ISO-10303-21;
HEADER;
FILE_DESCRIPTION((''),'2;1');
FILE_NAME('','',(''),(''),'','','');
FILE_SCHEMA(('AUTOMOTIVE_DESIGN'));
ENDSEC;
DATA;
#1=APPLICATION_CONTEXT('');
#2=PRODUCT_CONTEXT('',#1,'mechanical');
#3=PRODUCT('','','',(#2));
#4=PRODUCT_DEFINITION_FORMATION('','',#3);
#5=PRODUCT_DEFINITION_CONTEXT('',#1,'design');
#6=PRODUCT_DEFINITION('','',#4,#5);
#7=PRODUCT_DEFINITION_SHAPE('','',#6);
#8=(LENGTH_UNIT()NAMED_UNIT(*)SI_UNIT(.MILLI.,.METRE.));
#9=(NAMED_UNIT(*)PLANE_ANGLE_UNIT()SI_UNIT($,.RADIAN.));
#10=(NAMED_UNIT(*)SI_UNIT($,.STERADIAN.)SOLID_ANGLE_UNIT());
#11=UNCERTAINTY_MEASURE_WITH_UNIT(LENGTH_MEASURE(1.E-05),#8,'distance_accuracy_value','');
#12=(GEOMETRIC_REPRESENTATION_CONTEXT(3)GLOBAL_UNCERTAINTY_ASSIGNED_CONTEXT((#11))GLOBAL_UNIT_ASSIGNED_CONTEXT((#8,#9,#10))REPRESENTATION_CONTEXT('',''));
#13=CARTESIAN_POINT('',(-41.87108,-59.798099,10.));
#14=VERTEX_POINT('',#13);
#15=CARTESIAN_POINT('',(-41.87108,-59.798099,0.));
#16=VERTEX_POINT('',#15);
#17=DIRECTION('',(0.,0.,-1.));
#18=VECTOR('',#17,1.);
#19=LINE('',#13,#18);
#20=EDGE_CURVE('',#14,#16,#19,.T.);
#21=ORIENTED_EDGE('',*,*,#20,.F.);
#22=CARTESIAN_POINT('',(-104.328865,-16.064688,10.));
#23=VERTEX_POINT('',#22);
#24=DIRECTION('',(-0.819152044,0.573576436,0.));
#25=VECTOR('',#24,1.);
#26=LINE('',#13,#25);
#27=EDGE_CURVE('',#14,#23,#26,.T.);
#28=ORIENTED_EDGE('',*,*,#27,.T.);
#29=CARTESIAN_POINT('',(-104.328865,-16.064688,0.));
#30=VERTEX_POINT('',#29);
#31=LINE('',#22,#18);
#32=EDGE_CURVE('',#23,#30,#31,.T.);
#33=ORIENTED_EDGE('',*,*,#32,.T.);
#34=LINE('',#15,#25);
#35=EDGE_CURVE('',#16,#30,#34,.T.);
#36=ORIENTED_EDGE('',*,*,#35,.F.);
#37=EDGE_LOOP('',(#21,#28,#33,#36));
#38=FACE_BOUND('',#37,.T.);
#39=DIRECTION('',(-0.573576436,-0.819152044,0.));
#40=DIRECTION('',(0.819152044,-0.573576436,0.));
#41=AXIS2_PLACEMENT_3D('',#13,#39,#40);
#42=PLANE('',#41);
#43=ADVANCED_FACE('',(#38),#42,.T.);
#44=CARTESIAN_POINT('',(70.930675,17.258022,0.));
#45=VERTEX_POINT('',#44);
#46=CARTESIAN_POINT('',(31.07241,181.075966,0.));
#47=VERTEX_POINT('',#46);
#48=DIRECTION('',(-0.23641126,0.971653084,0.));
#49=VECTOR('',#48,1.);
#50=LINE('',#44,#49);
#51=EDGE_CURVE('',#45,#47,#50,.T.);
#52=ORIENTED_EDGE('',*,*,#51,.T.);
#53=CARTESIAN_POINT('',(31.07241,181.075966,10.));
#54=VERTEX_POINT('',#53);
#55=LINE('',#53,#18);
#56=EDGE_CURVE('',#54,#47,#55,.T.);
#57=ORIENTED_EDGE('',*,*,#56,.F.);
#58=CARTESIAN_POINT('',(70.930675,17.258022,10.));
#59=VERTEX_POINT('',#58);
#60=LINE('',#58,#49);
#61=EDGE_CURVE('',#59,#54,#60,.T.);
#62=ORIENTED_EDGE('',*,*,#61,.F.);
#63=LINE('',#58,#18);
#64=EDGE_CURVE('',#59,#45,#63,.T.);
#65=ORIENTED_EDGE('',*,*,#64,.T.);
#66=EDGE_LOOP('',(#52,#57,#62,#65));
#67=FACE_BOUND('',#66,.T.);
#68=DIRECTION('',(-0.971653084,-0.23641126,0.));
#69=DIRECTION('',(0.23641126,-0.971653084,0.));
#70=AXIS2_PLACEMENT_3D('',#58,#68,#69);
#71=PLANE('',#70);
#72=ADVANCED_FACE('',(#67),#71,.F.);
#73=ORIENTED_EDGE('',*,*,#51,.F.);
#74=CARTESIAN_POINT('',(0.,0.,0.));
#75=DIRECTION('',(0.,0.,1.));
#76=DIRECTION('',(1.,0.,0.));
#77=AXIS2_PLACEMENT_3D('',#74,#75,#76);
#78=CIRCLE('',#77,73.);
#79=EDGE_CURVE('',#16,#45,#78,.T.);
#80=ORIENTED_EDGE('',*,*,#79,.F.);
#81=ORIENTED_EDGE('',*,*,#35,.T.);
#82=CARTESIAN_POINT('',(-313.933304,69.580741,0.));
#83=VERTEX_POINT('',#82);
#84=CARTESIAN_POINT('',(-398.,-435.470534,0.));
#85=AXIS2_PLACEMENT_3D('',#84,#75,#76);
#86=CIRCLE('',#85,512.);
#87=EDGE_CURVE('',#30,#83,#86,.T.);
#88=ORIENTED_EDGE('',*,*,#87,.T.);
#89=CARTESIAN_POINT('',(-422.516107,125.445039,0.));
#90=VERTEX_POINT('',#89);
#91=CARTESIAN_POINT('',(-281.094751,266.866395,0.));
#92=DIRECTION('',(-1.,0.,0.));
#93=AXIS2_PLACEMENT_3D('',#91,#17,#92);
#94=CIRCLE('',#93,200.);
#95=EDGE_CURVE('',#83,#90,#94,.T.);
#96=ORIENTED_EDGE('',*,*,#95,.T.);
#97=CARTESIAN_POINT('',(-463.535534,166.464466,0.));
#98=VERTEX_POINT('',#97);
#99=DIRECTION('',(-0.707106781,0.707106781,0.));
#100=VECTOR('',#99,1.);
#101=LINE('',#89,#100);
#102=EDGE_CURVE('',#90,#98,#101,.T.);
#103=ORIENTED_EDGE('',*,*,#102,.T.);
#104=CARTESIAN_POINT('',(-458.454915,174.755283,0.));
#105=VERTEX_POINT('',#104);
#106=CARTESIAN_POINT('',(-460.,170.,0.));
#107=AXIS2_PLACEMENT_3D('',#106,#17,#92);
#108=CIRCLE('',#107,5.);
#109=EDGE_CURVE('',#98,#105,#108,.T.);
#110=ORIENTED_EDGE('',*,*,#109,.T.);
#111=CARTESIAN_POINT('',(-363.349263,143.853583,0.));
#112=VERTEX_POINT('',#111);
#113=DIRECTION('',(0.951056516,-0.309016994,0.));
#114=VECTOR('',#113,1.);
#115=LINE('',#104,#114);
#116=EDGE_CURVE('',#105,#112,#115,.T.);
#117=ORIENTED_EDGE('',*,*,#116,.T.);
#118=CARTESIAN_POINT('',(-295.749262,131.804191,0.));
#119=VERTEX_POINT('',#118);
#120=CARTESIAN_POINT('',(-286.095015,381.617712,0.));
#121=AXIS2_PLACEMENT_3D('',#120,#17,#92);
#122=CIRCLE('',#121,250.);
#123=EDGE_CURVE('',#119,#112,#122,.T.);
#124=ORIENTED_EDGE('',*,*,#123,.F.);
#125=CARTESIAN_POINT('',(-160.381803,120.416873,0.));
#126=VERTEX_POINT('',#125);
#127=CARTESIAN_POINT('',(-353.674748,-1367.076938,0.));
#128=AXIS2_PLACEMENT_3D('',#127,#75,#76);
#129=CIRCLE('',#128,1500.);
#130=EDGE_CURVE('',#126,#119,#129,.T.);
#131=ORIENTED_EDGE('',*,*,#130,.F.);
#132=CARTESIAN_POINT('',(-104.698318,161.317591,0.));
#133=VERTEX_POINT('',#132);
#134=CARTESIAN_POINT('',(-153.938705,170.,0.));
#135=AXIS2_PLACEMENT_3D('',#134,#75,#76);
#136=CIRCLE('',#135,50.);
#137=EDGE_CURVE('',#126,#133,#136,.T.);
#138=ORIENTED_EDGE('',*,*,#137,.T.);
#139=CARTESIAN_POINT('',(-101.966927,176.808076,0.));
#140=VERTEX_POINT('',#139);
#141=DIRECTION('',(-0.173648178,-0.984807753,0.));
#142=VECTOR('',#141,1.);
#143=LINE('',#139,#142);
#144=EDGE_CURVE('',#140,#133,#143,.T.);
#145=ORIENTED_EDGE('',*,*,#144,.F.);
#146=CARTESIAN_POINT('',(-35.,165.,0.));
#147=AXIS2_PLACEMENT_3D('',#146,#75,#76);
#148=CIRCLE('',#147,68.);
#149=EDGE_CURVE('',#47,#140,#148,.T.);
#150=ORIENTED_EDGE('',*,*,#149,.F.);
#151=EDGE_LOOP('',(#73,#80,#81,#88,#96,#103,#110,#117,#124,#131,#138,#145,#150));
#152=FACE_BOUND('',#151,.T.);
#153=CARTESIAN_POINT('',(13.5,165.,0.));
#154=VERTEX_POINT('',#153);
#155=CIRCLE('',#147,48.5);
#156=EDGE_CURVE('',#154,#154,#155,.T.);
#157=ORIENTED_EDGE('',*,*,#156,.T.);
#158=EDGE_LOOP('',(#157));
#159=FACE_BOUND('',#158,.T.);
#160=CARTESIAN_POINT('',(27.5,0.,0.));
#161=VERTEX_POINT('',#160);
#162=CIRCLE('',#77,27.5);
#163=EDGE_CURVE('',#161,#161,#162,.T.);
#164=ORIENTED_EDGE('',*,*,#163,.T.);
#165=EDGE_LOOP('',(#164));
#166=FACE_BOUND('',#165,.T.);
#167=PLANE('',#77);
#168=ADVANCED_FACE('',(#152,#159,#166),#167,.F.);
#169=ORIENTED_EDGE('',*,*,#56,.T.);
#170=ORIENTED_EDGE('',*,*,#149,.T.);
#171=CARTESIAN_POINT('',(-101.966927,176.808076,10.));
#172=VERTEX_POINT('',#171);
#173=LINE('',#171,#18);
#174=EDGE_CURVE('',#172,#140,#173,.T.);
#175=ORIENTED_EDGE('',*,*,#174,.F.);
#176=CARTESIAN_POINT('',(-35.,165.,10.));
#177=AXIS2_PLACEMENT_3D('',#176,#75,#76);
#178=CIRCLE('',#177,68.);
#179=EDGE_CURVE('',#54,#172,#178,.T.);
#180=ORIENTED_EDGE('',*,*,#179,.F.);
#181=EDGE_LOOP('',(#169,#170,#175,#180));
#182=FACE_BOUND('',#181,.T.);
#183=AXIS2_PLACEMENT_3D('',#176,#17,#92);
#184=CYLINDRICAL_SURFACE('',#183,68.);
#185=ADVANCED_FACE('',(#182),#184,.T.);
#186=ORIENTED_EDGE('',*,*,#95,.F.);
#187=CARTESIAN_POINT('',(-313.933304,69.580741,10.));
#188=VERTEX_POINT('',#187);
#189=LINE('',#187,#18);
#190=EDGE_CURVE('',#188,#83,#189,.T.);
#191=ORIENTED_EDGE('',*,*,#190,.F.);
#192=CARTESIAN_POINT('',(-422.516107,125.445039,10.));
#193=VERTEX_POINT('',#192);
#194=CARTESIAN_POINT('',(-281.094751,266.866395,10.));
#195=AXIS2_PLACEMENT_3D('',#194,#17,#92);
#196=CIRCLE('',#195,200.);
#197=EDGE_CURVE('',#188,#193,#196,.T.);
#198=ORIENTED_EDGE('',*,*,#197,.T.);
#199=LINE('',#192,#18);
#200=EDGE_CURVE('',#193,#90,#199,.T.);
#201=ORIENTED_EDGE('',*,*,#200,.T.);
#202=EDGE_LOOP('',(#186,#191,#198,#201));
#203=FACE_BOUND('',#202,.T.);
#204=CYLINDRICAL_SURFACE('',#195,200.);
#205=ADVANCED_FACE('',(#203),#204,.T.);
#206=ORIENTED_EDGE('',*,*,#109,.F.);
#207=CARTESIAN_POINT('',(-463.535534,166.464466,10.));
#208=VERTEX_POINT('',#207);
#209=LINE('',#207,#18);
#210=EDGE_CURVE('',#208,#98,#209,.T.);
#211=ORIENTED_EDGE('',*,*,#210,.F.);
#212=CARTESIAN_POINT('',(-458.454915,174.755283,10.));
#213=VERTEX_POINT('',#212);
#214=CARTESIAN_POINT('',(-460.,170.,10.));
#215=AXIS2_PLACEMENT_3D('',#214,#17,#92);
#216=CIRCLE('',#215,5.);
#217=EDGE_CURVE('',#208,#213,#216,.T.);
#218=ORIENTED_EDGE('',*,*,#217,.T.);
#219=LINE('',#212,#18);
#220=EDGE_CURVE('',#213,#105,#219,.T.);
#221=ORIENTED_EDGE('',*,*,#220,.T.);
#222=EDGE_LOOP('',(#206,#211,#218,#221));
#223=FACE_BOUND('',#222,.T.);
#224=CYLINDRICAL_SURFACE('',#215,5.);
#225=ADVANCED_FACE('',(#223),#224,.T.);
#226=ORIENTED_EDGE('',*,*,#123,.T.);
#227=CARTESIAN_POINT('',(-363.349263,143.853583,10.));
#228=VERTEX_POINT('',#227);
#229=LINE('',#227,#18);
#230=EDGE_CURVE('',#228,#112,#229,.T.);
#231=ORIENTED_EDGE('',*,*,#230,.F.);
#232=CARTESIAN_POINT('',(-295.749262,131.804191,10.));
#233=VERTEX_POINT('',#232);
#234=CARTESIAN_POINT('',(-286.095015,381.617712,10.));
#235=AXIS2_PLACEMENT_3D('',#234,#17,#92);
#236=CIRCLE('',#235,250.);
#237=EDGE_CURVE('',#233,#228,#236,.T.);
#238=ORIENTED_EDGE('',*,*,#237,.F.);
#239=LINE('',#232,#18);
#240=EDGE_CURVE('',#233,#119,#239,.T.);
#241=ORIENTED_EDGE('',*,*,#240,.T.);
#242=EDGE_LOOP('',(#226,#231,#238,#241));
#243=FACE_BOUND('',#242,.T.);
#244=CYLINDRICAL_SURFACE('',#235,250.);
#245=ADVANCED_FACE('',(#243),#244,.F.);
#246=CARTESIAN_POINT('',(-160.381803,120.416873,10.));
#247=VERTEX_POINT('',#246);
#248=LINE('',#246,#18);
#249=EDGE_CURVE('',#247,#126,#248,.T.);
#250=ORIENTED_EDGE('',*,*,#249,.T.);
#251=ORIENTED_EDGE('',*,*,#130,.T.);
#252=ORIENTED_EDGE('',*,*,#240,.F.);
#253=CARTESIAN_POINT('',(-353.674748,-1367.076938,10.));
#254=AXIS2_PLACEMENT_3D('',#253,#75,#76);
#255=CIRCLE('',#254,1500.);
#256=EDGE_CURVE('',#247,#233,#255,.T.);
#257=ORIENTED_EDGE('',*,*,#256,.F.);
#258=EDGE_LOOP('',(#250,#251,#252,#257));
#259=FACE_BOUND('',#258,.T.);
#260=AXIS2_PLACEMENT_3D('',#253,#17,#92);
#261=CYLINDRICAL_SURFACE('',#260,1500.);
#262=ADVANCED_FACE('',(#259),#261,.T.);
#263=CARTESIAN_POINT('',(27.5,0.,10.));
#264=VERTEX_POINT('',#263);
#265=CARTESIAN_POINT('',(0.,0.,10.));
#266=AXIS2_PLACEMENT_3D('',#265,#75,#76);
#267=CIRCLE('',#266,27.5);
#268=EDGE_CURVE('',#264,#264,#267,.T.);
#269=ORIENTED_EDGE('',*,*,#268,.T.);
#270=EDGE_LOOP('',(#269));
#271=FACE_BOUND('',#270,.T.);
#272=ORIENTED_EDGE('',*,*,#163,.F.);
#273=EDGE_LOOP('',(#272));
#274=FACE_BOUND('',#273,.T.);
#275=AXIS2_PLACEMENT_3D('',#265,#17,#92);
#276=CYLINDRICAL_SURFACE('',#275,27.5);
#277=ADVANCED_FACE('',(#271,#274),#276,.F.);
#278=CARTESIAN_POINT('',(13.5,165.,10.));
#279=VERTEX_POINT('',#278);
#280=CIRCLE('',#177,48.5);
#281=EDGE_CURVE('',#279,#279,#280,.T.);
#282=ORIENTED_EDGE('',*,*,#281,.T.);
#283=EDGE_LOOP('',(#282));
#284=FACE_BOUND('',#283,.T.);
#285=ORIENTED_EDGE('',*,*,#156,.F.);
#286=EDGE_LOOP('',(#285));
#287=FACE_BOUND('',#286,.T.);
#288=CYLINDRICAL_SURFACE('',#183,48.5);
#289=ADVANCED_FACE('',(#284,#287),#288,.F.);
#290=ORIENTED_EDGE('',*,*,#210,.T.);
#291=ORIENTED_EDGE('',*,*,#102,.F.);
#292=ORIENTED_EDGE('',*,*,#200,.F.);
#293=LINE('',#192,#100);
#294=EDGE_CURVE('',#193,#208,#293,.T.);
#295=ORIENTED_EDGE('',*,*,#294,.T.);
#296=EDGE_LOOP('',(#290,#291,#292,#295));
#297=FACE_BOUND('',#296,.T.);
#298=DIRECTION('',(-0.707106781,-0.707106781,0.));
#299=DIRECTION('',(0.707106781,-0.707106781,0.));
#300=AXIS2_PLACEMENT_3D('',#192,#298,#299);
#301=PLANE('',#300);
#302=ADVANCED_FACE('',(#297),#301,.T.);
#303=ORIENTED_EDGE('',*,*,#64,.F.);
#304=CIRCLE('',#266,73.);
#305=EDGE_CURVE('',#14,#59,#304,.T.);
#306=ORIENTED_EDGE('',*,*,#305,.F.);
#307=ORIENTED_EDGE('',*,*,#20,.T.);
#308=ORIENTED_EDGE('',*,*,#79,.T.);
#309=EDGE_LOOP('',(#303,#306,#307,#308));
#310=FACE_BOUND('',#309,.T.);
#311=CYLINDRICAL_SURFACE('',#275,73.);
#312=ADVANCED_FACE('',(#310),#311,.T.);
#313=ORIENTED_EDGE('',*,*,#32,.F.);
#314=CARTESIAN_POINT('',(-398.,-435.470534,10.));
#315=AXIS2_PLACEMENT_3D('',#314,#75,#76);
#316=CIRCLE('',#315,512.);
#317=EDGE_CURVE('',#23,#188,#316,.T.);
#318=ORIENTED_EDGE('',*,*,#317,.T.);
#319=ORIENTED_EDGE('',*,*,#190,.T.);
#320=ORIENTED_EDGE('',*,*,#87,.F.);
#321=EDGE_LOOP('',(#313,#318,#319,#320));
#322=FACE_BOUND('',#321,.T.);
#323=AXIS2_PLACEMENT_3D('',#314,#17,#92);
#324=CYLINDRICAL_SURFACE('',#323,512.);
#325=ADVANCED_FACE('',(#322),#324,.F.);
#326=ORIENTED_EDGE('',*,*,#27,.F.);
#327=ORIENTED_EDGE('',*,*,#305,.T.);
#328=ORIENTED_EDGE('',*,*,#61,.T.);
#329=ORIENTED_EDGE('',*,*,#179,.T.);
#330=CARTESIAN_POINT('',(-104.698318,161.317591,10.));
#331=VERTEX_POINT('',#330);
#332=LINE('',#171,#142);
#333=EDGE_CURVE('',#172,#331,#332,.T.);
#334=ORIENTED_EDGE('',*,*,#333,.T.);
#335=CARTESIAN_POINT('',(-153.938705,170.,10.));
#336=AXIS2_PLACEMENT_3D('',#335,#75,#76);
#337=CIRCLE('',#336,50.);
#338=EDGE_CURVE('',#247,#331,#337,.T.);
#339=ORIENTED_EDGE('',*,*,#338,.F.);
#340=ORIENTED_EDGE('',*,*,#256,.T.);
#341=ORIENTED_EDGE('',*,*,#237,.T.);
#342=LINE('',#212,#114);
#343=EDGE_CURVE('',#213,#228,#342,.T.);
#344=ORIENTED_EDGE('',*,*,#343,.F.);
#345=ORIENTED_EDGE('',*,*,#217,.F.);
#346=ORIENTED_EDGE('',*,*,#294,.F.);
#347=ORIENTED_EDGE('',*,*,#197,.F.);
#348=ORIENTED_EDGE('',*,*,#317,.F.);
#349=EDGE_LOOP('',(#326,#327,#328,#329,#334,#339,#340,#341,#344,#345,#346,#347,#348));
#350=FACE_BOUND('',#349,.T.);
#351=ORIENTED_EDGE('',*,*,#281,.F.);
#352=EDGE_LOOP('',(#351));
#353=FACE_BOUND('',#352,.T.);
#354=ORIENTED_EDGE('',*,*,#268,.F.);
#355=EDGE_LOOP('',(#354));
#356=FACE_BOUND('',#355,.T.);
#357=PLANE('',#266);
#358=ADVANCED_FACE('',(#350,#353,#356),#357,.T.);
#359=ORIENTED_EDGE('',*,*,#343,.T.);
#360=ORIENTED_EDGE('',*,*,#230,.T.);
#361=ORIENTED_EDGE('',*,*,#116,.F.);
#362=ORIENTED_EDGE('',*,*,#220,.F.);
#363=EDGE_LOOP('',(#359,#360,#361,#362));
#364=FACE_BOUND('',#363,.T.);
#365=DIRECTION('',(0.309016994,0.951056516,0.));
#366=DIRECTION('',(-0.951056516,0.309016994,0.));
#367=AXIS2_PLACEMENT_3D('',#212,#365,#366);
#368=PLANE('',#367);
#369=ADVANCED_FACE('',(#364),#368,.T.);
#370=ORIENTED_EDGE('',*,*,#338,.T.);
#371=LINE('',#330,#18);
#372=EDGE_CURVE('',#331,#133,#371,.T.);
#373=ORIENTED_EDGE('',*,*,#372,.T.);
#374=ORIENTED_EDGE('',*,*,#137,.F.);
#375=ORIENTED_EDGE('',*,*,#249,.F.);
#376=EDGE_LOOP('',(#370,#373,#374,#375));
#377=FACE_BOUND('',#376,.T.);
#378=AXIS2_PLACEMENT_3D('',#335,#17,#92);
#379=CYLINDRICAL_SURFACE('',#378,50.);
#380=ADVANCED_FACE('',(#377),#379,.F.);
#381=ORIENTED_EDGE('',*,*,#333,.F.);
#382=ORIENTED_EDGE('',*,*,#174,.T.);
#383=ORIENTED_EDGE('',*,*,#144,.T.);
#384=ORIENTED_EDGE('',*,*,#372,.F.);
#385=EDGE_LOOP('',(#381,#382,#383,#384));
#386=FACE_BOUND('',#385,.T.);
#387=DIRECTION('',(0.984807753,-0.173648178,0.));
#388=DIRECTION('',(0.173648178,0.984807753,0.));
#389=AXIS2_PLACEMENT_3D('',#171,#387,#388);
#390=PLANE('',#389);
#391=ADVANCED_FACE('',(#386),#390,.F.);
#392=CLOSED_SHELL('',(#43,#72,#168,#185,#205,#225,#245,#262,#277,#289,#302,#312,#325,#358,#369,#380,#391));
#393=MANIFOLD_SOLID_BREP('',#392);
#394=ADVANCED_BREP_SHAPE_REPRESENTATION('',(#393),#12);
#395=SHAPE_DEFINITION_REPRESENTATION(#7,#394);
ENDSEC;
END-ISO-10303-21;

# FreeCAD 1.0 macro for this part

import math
import FreeCAD as App
import Part
import Sketcher
from FreeCAD import Vector
Q = App.Units.Quantity

doc = App.newDocument("Part")
body = doc.addObject("PartDesign::Body", "Body")

sketch1 = doc.addObject("Sketcher::SketchObject", "Sketch")
body.addObject(sketch1)
sketch1.AttachmentSupport = (doc.XY_Plane, [""])
sketch1.MapMode = "FlatFace"
sketch1.addGeometry(Part.LineSegment(Vector(71, 17, 0), Vector(31, 181, 0)), False)
sketch1.addGeometry(Part.ArcOfCircle(Part.Circle(Vector(-35, 165, 0), Vector(0, 0, 1), 68), math.radians(14), math.radians(170)), False)
sketch1.addGeometry(Part.LineSegment(Vector(-102, 177, 0), Vector(-105, 161, 0)), False)
sketch1.addGeometry(Part.ArcOfCircle(Part.Circle(Vector(-154, 170, 0), Vector(0, 0, 1), 50), math.radians(-97), math.radians(-10)), False)
sketch1.addGeometry(Part.ArcOfCircle(Part.Circle(Vector(-354, -1367, 0), Vector(0, 0, 1), 1500), math.radians(82.6), math.radians(87.79)), False)
sketch1.addGeometry(Part.ArcOfCircle(Part.Circle(Vector(-286, 382, 0), Vector(0, 0, 1), 250), math.radians(-108), math.radians(-92.21)), False)
sketch1.addGeometry(Part.LineSegment(Vector(-363, 144, 0), Vector(-458, 175, 0)), False)
sketch1.addGeometry(Part.ArcOfCircle(Part.Circle(Vector(-460, 170, 0), Vector(0, 0, 1), 5), math.radians(72), math.radians(225)), False)
sketch1.addGeometry(Part.LineSegment(Vector(-464, 166, 0), Vector(-423, 125, 0)), False)
sketch1.addGeometry(Part.ArcOfCircle(Part.Circle(Vector(-281, 267, 0), Vector(0, 0, 1), 200), math.radians(-135), math.radians(-99)), False)
sketch1.addGeometry(Part.ArcOfCircle(Part.Circle(Vector(-398, -435, 0), Vector(0, 0, 1), 512), math.radians(55), math.radians(81)), False)
sketch1.addGeometry(Part.LineSegment(Vector(-104, -16, 0), Vector(-42, -60, 0)), False)
sketch1.addGeometry(Part.ArcOfCircle(Part.Circle(Vector(0, 0, 0), Vector(0, 0, 1), 73), math.radians(-125), math.radians(14)), False)
sketch1.addGeometry(Part.Circle(Vector(0, 0, 0), Vector(0, 0, 1), 28), False)
sketch1.addGeometry(Part.Circle(Vector(-35, 165, 0), Vector(0, 0, 1), 48), False)
sketch1.addConstraint(Sketcher.Constraint("Tangent", 0, 2, 1, 1))
sketch1.addConstraint(Sketcher.Constraint("Tangent", 1, 2, 2, 1))
sketch1.addConstraint(Sketcher.Constraint("Tangent", 2, 2, 3, 2))
sketch1.addConstraint(Sketcher.Constraint("Tangent", 3, 1, 4, 1))
sketch1.addConstraint(Sketcher.Constraint("Tangent", 4, 2, 5, 2))
sketch1.addConstraint(Sketcher.Constraint("Tangent", 5, 1, 6, 1))
sketch1.addConstraint(Sketcher.Constraint("Tangent", 6, 2, 7, 1))
sketch1.addConstraint(Sketcher.Constraint("Tangent", 7, 2, 8, 1))
sketch1.addConstraint(Sketcher.Constraint("Tangent", 8, 2, 9, 1))
sketch1.addConstraint(Sketcher.Constraint("Tangent", 9, 2, 10, 2))
sketch1.addConstraint(Sketcher.Constraint("Tangent", 10, 1, 11, 1))
sketch1.addConstraint(Sketcher.Constraint("Tangent", 11, 2, 12, 1))
sketch1.addConstraint(Sketcher.Constraint("Tangent", 12, 2, 0, 1))
sketch1.addConstraint(Sketcher.Constraint("Coincident", 12, 3, -1, 1))
sketch1.addConstraint(Sketcher.Constraint("Coincident", 13, 3, -1, 1))
sketch1.addConstraint(Sketcher.Constraint("Coincident", 14, 3, 1, 3))
sketch1.addConstraint(Sketcher.Constraint("Horizontal", 3, 3, 7, 3))
sketch1.addConstraint(Sketcher.Constraint("Diameter", 13, 55.0))
sketch1.addConstraint(Sketcher.Constraint("Diameter", 14, 97.0))
sketch1.addConstraint(Sketcher.Constraint("Radius", 1, 68.0))
sketch1.addConstraint(Sketcher.Constraint("Radius", 3, 50.0))
sketch1.addConstraint(Sketcher.Constraint("Radius", 4, 1500.000001))
sketch1.addConstraint(Sketcher.Constraint("Radius", 5, 250.0))
sketch1.addConstraint(Sketcher.Constraint("Radius", 7, 5.0))
sketch1.addConstraint(Sketcher.Constraint("Radius", 9, 200.0))
sketch1.addConstraint(Sketcher.Constraint("Radius", 10, 512.0))
sketch1.addConstraint(Sketcher.Constraint("Radius", 12, 73.0))
sketch1.addConstraint(Sketcher.Constraint("Angle", 2, Q("-100 deg")))
sketch1.addConstraint(Sketcher.Constraint("Angle", 6, Q("162 deg")))
sketch1.addConstraint(Sketcher.Constraint("Angle", 8, Q("-45 deg")))
sketch1.addConstraint(Sketcher.Constraint("Angle", 11, Q("-35 deg")))
sketch1.addConstraint(Sketcher.Constraint("Distance", 6, 100.0))
sketch1.addConstraint(Sketcher.Constraint("DistanceX", 1, 3, -1, 1, 35.0))
sketch1.addConstraint(Sketcher.Constraint("DistanceY", -1, 1, 1, 3, 165.0))
sketch1.addConstraint(Sketcher.Constraint("DistanceY", -1, 1, 3, 3, 170.0))
sketch1.addConstraint(Sketcher.Constraint("DistanceX", 7, 3, -1, 1, 460.0))
sketch1.addConstraint(Sketcher.Constraint("DistanceX", 10, 3, -1, 1, 398.0))
pad1 = doc.addObject("PartDesign::Pad", "Pad")
body.addObject(pad1)
pad1.Profile = sketch1
pad1.Length = 10

doc.recompute()
